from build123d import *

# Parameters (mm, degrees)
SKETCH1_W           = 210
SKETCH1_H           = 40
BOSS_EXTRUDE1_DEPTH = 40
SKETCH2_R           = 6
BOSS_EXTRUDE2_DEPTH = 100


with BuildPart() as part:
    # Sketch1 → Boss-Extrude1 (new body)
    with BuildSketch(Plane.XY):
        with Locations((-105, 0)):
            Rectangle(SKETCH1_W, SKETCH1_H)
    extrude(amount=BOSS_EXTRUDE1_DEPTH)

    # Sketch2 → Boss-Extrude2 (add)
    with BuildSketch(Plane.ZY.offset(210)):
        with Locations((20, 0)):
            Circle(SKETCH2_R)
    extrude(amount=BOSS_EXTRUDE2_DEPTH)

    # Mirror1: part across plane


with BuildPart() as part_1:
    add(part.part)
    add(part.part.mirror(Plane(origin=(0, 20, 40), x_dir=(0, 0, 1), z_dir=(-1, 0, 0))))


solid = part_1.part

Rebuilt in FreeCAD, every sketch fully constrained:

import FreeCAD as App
import Part
import Sketcher
Q = App.Units.Quantity

doc = App.newDocument("Part")
body = doc.addObject("PartDesign::Body", "Body")

# Sketch on XY plane
sketch1 = body.newObject("Sketcher::SketchObject", "Sketch")
sketch1.AttachmentSupport = (doc.getObject("XY_Plane"), [""])
sketch1.MapMode = "FlatFace"
sketch1.addGeometry(Part.LineSegment(App.Vector(-210, 20, 0), App.Vector(-210, -20, 0)), False)
sketch1.addGeometry(Part.LineSegment(App.Vector(-210, -20, 0), App.Vector(0, -20, 0)), False)
sketch1.addGeometry(Part.LineSegment(App.Vector(0, -20, 0), App.Vector(0, 20, 0)), False)
sketch1.addGeometry(Part.LineSegment(App.Vector(0, 20, 0), App.Vector(-210, 20, 0)), False)
sketch1.addConstraint(Sketcher.Constraint("Coincident", 0, 2, 1, 1))
sketch1.addConstraint(Sketcher.Constraint("Coincident", 1, 2, 2, 1))
sketch1.addConstraint(Sketcher.Constraint("Coincident", 2, 2, 3, 1))
sketch1.addConstraint(Sketcher.Constraint("Coincident", 3, 2, 0, 1))
sketch1.addConstraint(Sketcher.Constraint("Vertical", 0))
sketch1.addConstraint(Sketcher.Constraint("Horizontal", 1))
sketch1.addConstraint(Sketcher.Constraint("Vertical", 2))
sketch1.addConstraint(Sketcher.Constraint("Horizontal", 3))
sketch1.addConstraint(Sketcher.Constraint("Symmetric", 1, 2, 2, 2, -1, 1))
sketch1.addConstraint(Sketcher.Constraint("DistanceX", 1, 1, 1, 2, Q("210 mm")))
sketch1.addConstraint(Sketcher.Constraint("DistanceY", 0, 2, 0, 1, Q("40 mm")))
pad1 = body.newObject("PartDesign::Pad", "Pad")
pad1.Profile = sketch1
pad1.Length = 40

# Sketch on YZ plane
sketch2 = body.newObject("Sketcher::SketchObject", "Sketch001")
sketch2.AttachmentSupport = (doc.getObject("YZ_Plane"), [""])
sketch2.MapMode = "FlatFace"
sketch2.AttachmentOffset = App.Placement(App.Vector(0, 0, -210), App.Rotation())
sketch2.addGeometry(Part.Circle(App.Vector(0, 20, 0), App.Vector(0, 0, 1), 6), False)
sketch2.addConstraint(Sketcher.Constraint("PointOnObject", 0, 3, -2))
sketch2.addConstraint(Sketcher.Constraint("Diameter", 0, Q("12 mm")))
sketch2.addConstraint(Sketcher.Constraint("DistanceY", -1, 1, 0, 3, Q("20 mm")))
pad2 = body.newObject("PartDesign::Pad", "Pad001")
pad2.Profile = sketch2
pad2.Length = 100
pad2.Reversed = True
body2 = doc.addObject("PartDesign::Body", "Body001")
doc.recompute()

body2.BaseFeature = body
doc.recompute()

mirroring = doc.addObject("Part::Mirroring", "Mirroring")
mirroring.Source = body
mirroring.Base = App.Vector(0, 20, 40)
mirroring.Normal = App.Vector(-1, 0, 0)
body3 = doc.addObject("PartDesign::Body", "Body002")
body3.BaseFeature = mirroring
boolean = body2.newObject("PartDesign::Boolean", "Boolean")
boolean.Type = "Fuse"
boolean.addObjects([body3])
doc.recompute()
mirroring.Visibility = False

doc.recompute()
